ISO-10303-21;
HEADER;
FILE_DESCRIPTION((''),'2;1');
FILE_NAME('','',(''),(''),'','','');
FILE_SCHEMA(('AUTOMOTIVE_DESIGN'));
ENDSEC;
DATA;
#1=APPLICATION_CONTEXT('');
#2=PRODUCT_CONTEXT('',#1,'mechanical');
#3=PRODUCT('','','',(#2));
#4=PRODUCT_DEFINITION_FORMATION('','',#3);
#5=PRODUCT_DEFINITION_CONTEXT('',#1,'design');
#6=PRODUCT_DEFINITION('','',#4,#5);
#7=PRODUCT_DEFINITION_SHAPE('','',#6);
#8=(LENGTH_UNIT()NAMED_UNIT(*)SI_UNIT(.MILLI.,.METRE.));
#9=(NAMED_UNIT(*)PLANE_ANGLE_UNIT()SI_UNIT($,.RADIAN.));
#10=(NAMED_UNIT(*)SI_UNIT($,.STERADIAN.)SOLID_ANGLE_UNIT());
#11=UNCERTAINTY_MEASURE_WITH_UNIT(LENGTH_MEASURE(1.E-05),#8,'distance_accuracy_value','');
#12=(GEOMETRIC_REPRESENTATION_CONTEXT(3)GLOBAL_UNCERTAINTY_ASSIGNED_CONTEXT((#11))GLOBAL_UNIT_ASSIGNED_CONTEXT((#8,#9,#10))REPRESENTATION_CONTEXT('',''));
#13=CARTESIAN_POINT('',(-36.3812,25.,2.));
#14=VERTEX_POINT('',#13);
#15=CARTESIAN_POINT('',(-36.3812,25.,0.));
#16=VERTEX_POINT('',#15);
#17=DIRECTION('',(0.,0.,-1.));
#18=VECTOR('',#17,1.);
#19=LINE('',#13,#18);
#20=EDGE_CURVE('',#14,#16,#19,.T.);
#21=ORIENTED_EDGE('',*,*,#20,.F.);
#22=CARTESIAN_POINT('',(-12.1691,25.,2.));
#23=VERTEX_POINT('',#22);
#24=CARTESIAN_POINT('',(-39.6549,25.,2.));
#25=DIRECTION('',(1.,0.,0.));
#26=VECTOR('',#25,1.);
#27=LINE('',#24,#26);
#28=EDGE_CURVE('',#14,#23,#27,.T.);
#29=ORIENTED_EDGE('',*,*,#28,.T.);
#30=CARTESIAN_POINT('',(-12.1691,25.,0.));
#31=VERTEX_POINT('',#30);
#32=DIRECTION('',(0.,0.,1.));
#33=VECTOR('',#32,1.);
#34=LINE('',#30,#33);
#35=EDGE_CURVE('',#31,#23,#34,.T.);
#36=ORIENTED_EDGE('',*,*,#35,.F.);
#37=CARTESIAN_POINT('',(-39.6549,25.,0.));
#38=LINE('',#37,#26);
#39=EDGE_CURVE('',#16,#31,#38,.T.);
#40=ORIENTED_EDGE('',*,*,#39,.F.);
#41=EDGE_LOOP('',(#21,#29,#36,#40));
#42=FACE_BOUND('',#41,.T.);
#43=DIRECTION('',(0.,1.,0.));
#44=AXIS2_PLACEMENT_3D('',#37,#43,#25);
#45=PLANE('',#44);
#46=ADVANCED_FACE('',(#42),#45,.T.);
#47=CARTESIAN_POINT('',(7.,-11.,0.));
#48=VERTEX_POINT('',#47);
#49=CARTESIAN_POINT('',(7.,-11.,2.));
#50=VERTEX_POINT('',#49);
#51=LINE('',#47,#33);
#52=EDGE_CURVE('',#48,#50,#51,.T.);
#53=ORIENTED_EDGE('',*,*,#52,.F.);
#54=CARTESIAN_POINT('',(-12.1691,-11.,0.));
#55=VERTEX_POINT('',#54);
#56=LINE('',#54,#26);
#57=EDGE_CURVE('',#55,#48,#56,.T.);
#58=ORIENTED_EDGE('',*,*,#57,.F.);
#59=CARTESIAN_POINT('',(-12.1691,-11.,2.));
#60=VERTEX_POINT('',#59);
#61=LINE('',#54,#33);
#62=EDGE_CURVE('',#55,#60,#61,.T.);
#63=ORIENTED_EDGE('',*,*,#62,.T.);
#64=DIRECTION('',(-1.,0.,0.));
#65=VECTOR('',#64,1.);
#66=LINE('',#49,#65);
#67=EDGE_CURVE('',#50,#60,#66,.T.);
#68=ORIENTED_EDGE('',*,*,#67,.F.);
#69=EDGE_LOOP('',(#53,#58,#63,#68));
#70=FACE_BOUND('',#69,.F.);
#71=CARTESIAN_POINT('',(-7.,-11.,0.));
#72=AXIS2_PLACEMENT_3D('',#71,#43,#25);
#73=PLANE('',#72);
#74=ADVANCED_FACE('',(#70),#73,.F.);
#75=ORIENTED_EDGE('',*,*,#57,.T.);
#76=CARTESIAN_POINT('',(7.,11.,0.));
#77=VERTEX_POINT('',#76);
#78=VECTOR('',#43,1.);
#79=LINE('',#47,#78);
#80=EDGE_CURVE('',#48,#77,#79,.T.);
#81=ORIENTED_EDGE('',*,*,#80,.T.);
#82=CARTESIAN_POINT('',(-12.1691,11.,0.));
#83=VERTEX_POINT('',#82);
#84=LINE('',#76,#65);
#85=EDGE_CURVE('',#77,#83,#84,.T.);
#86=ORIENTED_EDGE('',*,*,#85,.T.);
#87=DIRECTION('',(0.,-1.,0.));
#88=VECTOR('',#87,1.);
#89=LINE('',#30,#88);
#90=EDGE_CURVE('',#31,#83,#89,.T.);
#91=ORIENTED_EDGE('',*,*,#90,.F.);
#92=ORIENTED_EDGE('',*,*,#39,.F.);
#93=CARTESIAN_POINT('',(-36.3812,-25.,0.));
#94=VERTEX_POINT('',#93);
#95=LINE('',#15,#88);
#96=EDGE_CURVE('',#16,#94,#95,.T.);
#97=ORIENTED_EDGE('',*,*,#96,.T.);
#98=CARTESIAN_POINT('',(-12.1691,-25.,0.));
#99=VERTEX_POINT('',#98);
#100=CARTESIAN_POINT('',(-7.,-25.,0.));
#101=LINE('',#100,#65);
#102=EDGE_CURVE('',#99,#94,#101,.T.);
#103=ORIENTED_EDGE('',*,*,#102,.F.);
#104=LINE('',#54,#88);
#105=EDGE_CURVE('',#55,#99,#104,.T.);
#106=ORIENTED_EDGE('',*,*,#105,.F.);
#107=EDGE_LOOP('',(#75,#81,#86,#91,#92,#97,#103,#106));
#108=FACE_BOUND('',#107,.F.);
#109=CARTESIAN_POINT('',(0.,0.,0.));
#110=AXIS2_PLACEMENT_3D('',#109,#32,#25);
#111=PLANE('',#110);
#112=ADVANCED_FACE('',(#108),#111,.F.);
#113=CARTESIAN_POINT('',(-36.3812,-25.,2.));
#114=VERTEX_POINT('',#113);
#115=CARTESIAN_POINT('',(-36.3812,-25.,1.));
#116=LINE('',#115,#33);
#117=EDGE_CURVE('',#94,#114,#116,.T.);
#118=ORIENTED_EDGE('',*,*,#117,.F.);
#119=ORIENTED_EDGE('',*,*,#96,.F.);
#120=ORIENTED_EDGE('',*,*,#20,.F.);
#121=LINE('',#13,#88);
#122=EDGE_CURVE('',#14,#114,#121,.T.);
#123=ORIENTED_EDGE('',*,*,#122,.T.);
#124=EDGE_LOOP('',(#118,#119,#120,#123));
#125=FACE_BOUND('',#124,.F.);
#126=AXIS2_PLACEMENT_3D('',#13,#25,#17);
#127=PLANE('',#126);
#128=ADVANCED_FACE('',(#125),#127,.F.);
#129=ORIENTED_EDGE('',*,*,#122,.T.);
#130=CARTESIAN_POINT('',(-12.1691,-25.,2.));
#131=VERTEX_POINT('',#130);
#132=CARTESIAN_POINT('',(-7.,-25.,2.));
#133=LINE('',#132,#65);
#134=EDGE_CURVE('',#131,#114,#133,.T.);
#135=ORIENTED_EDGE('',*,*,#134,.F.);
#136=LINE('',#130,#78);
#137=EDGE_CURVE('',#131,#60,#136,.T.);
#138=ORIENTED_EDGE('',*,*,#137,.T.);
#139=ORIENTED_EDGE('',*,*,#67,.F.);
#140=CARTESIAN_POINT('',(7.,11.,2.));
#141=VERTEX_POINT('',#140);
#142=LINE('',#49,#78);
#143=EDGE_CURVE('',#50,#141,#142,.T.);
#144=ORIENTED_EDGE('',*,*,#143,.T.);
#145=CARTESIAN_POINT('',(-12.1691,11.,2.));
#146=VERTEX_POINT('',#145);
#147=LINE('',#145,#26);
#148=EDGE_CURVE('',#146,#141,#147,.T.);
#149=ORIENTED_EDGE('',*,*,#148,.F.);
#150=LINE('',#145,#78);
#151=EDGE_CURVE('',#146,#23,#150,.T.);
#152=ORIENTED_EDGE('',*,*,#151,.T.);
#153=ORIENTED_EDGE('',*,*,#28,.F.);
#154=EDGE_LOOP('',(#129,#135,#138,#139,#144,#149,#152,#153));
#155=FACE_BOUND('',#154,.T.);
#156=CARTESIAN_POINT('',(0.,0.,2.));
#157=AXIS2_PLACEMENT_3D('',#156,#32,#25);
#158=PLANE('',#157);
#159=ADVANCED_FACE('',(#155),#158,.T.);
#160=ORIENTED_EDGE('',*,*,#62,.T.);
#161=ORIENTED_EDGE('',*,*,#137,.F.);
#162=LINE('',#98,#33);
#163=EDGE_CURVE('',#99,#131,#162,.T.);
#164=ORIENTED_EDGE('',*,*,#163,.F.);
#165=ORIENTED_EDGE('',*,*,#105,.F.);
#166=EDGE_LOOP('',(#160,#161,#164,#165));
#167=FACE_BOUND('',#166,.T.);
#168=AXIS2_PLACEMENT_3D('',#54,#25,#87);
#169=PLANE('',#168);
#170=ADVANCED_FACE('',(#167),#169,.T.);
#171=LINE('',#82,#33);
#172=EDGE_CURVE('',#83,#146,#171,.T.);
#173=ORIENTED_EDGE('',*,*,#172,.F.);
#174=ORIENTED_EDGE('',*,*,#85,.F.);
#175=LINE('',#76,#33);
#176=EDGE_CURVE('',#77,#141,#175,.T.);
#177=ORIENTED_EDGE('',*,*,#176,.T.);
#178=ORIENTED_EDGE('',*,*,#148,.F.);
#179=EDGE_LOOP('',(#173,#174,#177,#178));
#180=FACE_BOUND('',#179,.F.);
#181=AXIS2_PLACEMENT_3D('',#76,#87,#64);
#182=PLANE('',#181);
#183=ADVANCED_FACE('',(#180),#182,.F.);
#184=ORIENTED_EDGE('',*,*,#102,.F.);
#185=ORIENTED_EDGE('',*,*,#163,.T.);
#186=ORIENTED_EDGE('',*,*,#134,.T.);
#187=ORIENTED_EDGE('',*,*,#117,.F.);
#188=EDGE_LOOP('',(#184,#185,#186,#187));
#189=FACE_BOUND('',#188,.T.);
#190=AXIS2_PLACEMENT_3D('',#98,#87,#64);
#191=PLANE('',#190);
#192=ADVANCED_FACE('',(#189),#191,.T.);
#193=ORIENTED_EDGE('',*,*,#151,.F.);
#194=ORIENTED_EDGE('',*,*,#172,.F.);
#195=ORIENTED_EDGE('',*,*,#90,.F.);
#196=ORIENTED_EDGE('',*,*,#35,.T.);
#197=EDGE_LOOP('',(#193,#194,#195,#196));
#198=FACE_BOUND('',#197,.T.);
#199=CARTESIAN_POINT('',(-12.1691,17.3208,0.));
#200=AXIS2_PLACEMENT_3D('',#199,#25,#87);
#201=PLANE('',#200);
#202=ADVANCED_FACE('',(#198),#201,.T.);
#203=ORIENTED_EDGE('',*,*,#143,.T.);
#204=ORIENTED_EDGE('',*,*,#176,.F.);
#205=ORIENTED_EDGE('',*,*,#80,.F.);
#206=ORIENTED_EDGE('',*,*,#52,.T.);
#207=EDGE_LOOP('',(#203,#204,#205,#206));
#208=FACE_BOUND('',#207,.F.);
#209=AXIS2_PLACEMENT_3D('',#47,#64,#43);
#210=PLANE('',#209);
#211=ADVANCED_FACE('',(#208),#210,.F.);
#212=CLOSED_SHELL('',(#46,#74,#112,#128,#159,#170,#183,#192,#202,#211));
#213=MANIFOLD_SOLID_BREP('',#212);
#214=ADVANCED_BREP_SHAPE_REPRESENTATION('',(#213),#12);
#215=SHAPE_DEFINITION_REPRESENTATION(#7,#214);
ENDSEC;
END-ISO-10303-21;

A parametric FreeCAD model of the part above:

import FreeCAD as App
import Part
import Sketcher

V = App.Vector


def add_polygon(sketch, points):
    """Adds a closed chain of lines whose ends are joined by coincident constraints."""
    first, n = sketch.GeometryCount, len(points)
    for a, b in zip(points, points[1:] + points[:1]):
        sketch.addGeometry(Part.LineSegment(App.Vector(*a, 0), App.Vector(*b, 0)), False)
    for i in range(n):
        sketch.addConstraint(Sketcher.Constraint("Coincident", first + i, 2, first + (i + 1) % n, 1))

doc = App.newDocument("Part")
params = doc.addObject("Spreadsheet::Sheet", "Params")
for row, (alias, value) in enumerate([
    ("sketch1_height", "22 mm"),
    ("sketch1_height2", "14 mm"),
    ("pad1_length", "2 mm"),
    ("sketch2_height", "2 mm"),
], start=1):
    params.set(f"A{row}", alias)
    params.set(f"B{row}", "=" + value)
    params.setAlias(f"B{row}", alias)

body = doc.addObject("PartDesign::Body", "Body")

# Sketch on XY plane
sketch1 = body.newObject("Sketcher::SketchObject", "Sketch")
sketch1.AttachmentSupport = (doc.getObject("XY_Plane"), [""])
sketch1.MapMode = "FlatFace"
add_polygon(sketch1, [(7, -11), (7, 11), (-12, 11), (-12, 25), (-40, 25), (-40, -25), (-12, -25), (-12, -11)])  # lines 0-7
sketch1.addConstraint([
    Sketcher.Constraint("Vertical", 0),
    Sketcher.Constraint("Horizontal", 1),
    Sketcher.Constraint("Vertical", 2),
    Sketcher.Constraint("Horizontal", 3),
    Sketcher.Constraint("Vertical", 4),
    Sketcher.Constraint("Horizontal", 5),
    Sketcher.Constraint("Vertical", 6),
    Sketcher.Constraint("Horizontal", 7),
    Sketcher.Constraint("Symmetric", 2, 2, 5, 2, -1),
    Sketcher.Constraint("Equal", 2, 6),
    Sketcher.Constraint("DistanceY", 0, 1, 0, 2, 22.0),
    Sketcher.Constraint("DistanceY", 2, 1, 2, 2, 14.0),
    Sketcher.Constraint("DistanceX", -1, 1, 0, 2, 7.0),
    Sketcher.Constraint("DistanceX", 1, 2, 1, 1, 19.169),
    Sketcher.Constraint("DistanceX", 3, 2, 3, 1, 27.4858),
])
sketch1.setExpression("Constraints[18]", "Params.sketch1_height")
sketch1.setExpression("Constraints[19]", "Params.sketch1_height2")
pad1 = body.newObject("PartDesign::Pad", "Pad")
pad1.Profile = sketch1
pad1.setExpression("Length", "Params.pad1_length")

# Sketch on XZ plane
sketch2 = body.newObject("Sketcher::SketchObject", "Sketch001")
sketch2.AttachmentSupport = (doc.getObject("XZ_Plane"), [""])
sketch2.MapMode = "FlatFace"
sketch2.AttachmentOffset = App.Placement(V(0, 0, -25), App.Rotation())
add_polygon(sketch2, [(-39.7, 2), (-36.4, 2), (-36.4, 0), (-39.7, 0)])  # lines 0-3
sketch2.addConstraint([
    Sketcher.Constraint("Horizontal", 0),
    Sketcher.Constraint("Vertical", 1),
    Sketcher.Constraint("Horizontal", 2),
    Sketcher.Constraint("Vertical", 3),
    Sketcher.Constraint("PointOnObject", 1, 2, -1),
    Sketcher.Constraint("DistanceY", 1, 2, 1, 1, 2.0),
    Sketcher.Constraint("DistanceX", 0, 1, 0, 2, 3.2737),
    Sketcher.Constraint("DistanceX", 2, 2, -1, 1, 39.655),
])
sketch2.setExpression("Constraints[9]", "Params.sketch2_height")
pocket1 = body.newObject("PartDesign::Pocket", "Pocket")
pocket1.Profile = sketch2
pocket1.Type = "ThroughAll"
pocket1.Reversed = True

doc.recompute()
